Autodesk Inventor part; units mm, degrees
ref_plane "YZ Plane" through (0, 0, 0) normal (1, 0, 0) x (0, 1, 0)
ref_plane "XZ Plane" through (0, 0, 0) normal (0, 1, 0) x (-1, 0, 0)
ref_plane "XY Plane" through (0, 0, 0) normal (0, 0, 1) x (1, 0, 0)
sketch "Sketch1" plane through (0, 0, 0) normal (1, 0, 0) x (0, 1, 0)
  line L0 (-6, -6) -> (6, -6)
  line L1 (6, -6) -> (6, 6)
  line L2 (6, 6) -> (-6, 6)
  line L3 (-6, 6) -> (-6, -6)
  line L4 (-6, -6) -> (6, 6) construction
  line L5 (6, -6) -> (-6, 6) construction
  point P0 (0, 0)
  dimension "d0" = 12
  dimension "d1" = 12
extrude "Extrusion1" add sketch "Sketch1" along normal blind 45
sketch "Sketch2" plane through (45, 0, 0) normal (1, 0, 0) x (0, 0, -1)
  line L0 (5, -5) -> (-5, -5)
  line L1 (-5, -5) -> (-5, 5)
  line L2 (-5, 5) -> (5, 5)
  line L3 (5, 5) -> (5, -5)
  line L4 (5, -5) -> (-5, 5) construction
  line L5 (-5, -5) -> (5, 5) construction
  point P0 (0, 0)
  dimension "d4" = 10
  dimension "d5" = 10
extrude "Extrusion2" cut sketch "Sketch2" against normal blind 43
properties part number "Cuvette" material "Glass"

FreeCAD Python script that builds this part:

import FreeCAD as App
import Part
import Sketcher

V = App.Vector

doc = App.newDocument("Part")
params = doc.addObject("Spreadsheet::Sheet", "Params")
for row, (alias, value) in enumerate([
    ("sketch1_width", "12 mm"),
    ("pad1_length", "45 mm"),
    ("sketch2_width", "10 mm"),
    ("pocket1_length", "43 mm"),
], start=1):
    params.set(f"A{row}", alias)
    params.set(f"B{row}", "=" + value)
    params.setAlias(f"B{row}", alias)

body = doc.addObject("PartDesign::Body", "Body")

# Sketch on YZ plane
sketch1 = body.newObject("Sketcher::SketchObject", "Sketch")
sketch1.AttachmentSupport = (doc.getObject("YZ_Plane"), [""])
sketch1.MapMode = "FlatFace"
sketch1.addGeometry([
    Part.LineSegment(V(-6, 6, 0), V(-6, -6, 0)),
    Part.LineSegment(V(-6, -6, 0), V(6, -6, 0)),
    Part.LineSegment(V(6, -6, 0), V(6, 6, 0)),
    Part.LineSegment(V(6, 6, 0), V(-6, 6, 0)),
], False)
sketch1.addConstraint([
    Sketcher.Constraint("Coincident", 0, 2, 1, 1),
    Sketcher.Constraint("Coincident", 1, 2, 2, 1),
    Sketcher.Constraint("Coincident", 2, 2, 3, 1),
    Sketcher.Constraint("Coincident", 3, 2, 0, 1),
    Sketcher.Constraint("Vertical", 0),
    Sketcher.Constraint("Horizontal", 1),
    Sketcher.Constraint("Vertical", 2),
    Sketcher.Constraint("Horizontal", 3),
    Sketcher.Constraint("Symmetric", 0, 2, 2, 2, -1, 1),
    Sketcher.Constraint("Equal", 3, 0),
    Sketcher.Constraint("DistanceX", 1, 1, 1, 2, 12.0),
])
sketch1.setExpression("Constraints[10]", "Params.sketch1_width")
pad1 = body.newObject("PartDesign::Pad", "Pad")
pad1.Profile = sketch1
pad1.setExpression("Length", "Params.pad1_length")

# Sketch on YZ plane
sketch2 = body.newObject("Sketcher::SketchObject", "Sketch001")
sketch2.AttachmentSupport = (doc.getObject("YZ_Plane"), [""])
sketch2.MapMode = "FlatFace"
sketch2.AttachmentOffset = App.Placement(V(0, 0, 45), App.Rotation())
sketch2.addGeometry([
    Part.LineSegment(V(-5, 5, 0), V(-5, -5, 0)),
    Part.LineSegment(V(-5, -5, 0), V(5, -5, 0)),
    Part.LineSegment(V(5, -5, 0), V(5, 5, 0)),
    Part.LineSegment(V(5, 5, 0), V(-5, 5, 0)),
], False)
sketch2.addConstraint([
    Sketcher.Constraint("Coincident", 0, 2, 1, 1),
    Sketcher.Constraint("Coincident", 1, 2, 2, 1),
    Sketcher.Constraint("Coincident", 2, 2, 3, 1),
    Sketcher.Constraint("Coincident", 3, 2, 0, 1),
    Sketcher.Constraint("Vertical", 0),
    Sketcher.Constraint("Horizontal", 1),
    Sketcher.Constraint("Vertical", 2),
    Sketcher.Constraint("Horizontal", 3),
    Sketcher.Constraint("Symmetric", 0, 2, 2, 2, -1, 1),
    Sketcher.Constraint("Equal", 3, 0),
    Sketcher.Constraint("DistanceX", 1, 1, 1, 2, 10.0),
])
sketch2.setExpression("Constraints[10]", "Params.sketch2_width")
pocket1 = body.newObject("PartDesign::Pocket", "Pocket")
pocket1.Profile = sketch2
pocket1.setExpression("Length", "Params.pocket1_length")

doc.recompute()
